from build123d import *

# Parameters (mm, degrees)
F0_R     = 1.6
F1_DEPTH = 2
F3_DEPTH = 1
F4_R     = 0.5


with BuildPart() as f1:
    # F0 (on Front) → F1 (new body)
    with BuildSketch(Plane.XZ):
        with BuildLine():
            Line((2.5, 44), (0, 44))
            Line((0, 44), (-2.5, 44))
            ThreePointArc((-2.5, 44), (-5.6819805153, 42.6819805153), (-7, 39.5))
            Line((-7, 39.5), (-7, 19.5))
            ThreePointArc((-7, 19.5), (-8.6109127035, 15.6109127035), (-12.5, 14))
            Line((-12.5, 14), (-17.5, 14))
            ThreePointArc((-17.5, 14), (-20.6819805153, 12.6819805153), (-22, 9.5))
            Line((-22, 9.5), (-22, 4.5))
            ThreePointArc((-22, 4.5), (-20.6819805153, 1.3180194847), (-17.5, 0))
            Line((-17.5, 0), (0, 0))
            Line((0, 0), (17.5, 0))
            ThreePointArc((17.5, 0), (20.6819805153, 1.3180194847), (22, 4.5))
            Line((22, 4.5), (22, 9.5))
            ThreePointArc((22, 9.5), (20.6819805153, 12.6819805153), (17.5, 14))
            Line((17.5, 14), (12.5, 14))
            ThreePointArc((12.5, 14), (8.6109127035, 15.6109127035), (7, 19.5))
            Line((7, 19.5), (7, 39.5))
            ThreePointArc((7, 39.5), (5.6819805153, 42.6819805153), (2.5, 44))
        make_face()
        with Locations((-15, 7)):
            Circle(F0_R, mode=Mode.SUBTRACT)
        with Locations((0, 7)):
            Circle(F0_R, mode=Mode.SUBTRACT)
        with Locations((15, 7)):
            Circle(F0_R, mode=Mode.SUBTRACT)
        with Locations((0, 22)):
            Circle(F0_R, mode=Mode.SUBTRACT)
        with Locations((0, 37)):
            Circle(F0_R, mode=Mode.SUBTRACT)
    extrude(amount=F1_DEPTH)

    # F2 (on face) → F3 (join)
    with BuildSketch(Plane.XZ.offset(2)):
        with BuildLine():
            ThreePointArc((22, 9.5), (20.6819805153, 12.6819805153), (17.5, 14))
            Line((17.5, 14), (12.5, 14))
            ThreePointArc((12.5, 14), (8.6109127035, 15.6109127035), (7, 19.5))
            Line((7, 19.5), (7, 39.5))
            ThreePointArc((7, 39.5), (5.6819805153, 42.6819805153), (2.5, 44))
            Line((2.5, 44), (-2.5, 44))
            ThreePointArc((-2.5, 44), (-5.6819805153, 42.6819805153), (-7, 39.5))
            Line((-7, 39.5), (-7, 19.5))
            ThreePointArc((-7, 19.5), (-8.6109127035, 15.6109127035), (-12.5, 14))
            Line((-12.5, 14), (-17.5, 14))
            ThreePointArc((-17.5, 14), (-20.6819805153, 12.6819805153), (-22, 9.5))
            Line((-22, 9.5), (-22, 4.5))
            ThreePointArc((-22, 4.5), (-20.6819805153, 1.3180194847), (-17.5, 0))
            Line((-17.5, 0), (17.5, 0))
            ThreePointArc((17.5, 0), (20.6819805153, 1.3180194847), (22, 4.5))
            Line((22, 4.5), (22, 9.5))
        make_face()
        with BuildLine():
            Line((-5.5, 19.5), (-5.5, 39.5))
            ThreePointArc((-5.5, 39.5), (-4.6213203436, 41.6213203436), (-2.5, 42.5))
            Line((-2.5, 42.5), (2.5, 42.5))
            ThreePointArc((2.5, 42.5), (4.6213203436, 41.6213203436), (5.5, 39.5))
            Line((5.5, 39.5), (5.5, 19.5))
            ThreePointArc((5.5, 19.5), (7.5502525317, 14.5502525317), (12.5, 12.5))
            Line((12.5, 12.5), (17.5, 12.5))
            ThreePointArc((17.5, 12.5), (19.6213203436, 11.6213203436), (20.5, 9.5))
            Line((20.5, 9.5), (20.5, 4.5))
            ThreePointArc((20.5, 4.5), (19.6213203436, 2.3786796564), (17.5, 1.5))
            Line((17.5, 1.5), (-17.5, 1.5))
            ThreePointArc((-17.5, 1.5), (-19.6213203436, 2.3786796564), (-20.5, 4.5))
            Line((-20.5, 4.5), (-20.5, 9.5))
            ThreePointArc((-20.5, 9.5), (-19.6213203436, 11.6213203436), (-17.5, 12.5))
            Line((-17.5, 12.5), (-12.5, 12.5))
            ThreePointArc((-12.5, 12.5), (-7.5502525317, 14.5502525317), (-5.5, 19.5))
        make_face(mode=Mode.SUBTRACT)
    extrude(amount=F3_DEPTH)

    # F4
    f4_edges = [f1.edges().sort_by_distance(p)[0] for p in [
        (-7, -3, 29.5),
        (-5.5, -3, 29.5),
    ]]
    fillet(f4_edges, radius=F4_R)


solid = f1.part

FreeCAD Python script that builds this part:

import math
import FreeCAD as App
import Part
import Sketcher
from FreeCAD import Vector


def edges_at(feature, points):
    """Names of the edges that pass closest to the given points."""
    edges = feature.Shape.Edges
    near = lambda p: min(range(len(edges)), key=lambda i: edges[i].distToShape(Part.Vertex(*p))[0])
    return sorted({f"Edge{near(p) + 1}" for p in points})

doc = App.newDocument("Part")
body = doc.addObject("PartDesign::Body", "Body")

# Sketch on XZ plane
sketch1 = body.newObject("Sketcher::SketchObject", "Sketch")
sketch1.AttachmentSupport = (doc.getObject("XZ_Plane"), [""])
sketch1.MapMode = "FlatFace"
sketch1.addGeometry([
    Part.LineSegment(Vector(2.5, 44, 0), Vector(-2.5, 44, 0)),  # 0
    Part.ArcOfCircle(Part.Circle(Vector(-2.5, 39.5, 0), Vector(0, 0, 1), 4.5), math.radians(90), math.radians(180)),  # 1
    Part.LineSegment(Vector(-7, 39.5, 0), Vector(-7, 19.5, 0)),  # 2
    Part.ArcOfCircle(Part.Circle(Vector(-12.5, 19.5, 0), Vector(0, 0, 1), 5.5), math.radians(-90), math.radians(0)),  # 3
    Part.LineSegment(Vector(-12.5, 14, 0), Vector(-17.5, 14, 0)),  # 4
    Part.ArcOfCircle(Part.Circle(Vector(-17.5, 9.5, 0), Vector(0, 0, 1), 4.5), math.radians(90), math.radians(180)),  # 5
    Part.LineSegment(Vector(-22, 9.5, 0), Vector(-22, 4.5, 0)),  # 6
    Part.ArcOfCircle(Part.Circle(Vector(-17.5, 4.5, 0), Vector(0, 0, 1), 4.5), math.radians(180), math.radians(270)),  # 7
    Part.LineSegment(Vector(-17.5, 0, 0), Vector(17.5, 0, 0)),  # 8
    Part.ArcOfCircle(Part.Circle(Vector(17.5, 4.5, 0), Vector(0, 0, 1), 4.5), math.radians(-90), math.radians(0)),  # 9
    Part.LineSegment(Vector(22, 4.5, 0), Vector(22, 9.5, 0)),  # 10
    Part.ArcOfCircle(Part.Circle(Vector(17.5, 9.5, 0), Vector(0, 0, 1), 4.5), math.radians(0), math.radians(90)),  # 11
    Part.LineSegment(Vector(17.5, 14, 0), Vector(12.5, 14, 0)),  # 12
    Part.ArcOfCircle(Part.Circle(Vector(12.5, 19.5, 0), Vector(0, 0, 1), 5.5), math.radians(180), math.radians(270)),  # 13
    Part.LineSegment(Vector(7, 19.5, 0), Vector(7, 39.5, 0)),  # 14
    Part.ArcOfCircle(Part.Circle(Vector(2.5, 39.5, 0), Vector(0, 0, 1), 4.5), math.radians(0), math.radians(90)),  # 15
    Part.Circle(Vector(-15, 7, 0), Vector(0, 0, 1), 1.6),  # 16
    Part.Circle(Vector(0, 7, 0), Vector(0, 0, 1), 1.6),  # 17
    Part.Circle(Vector(15, 7, 0), Vector(0, 0, 1), 1.6),  # 18
    Part.Circle(Vector(0, 22, 0), Vector(0, 0, 1), 1.6),  # 19
    Part.Circle(Vector(0, 37, 0), Vector(0, 0, 1), 1.6),  # 20
], False)
sketch1.addConstraint([
    Sketcher.Constraint("Tangent", 0, 2, 1, 1),
    Sketcher.Constraint("Tangent", 1, 2, 2, 1),
    Sketcher.Constraint("Tangent", 2, 2, 3, 2),
    Sketcher.Constraint("Tangent", 3, 1, 4, 1),
    Sketcher.Constraint("Tangent", 4, 2, 5, 1),
    Sketcher.Constraint("Tangent", 5, 2, 6, 1),
    Sketcher.Constraint("Tangent", 6, 2, 7, 1),
    Sketcher.Constraint("Tangent", 7, 2, 8, 1),
    Sketcher.Constraint("Tangent", 8, 2, 9, 1),
    Sketcher.Constraint("Tangent", 9, 2, 10, 1),
    Sketcher.Constraint("Tangent", 10, 2, 11, 1),
    Sketcher.Constraint("Tangent", 11, 2, 12, 1),
    Sketcher.Constraint("Tangent", 12, 2, 13, 2),
    Sketcher.Constraint("Tangent", 13, 1, 14, 1),
    Sketcher.Constraint("Tangent", 14, 2, 15, 1),
    Sketcher.Constraint("Tangent", 15, 2, 0, 1),
    Sketcher.Constraint("Horizontal", 0),
    Sketcher.Constraint("Vertical", 2),
    Sketcher.Constraint("Horizontal", 4),
    Sketcher.Constraint("Vertical", 6),
    Sketcher.Constraint("Horizontal", 8),
    Sketcher.Constraint("Vertical", 10),
    Sketcher.Constraint("Horizontal", 12),
    Sketcher.Constraint("Vertical", 14),
    Sketcher.Constraint("Equal", 1, 5),
    Sketcher.Constraint("Equal", 5, 7),
    Sketcher.Constraint("Equal", 7, 9),
    Sketcher.Constraint("Equal", 9, 11),
    Sketcher.Constraint("Equal", 3, 13),
    Sketcher.Constraint("Equal", 11, 15),
    Sketcher.Constraint("Equal", 16, 17),
    Sketcher.Constraint("Equal", 17, 18),
    Sketcher.Constraint("Equal", 18, 19),
    Sketcher.Constraint("Equal", 19, 20),
    Sketcher.Constraint("Symmetric", 7, 2, 8, 2, -1, 1),
    Sketcher.Constraint("Symmetric", 3, 3, 13, 3, -2),
    Sketcher.Constraint("Symmetric", 16, 3, 18, 3, -2),
    Sketcher.Constraint("PointOnObject", 17, 3, -2),
    Sketcher.Constraint("PointOnObject", 19, 3, -2),
    Sketcher.Constraint("PointOnObject", 20, 3, -2),
    Sketcher.Constraint("Horizontal", 16, 3, 17, 3),
    Sketcher.Constraint("Equal", 0, 4),
    Sketcher.Constraint("Equal", 12, 6),
    Sketcher.Constraint("Diameter", 16, 3.2),
    Sketcher.Constraint("Radius", 1, 4.5),
    Sketcher.Constraint("Radius", 3, 5.5),
    Sketcher.Constraint("DistanceX", 0, 2, 0, 1, 5.0),
    Sketcher.Constraint("DistanceY", 2, 2, 2, 1, 20.0),
    Sketcher.Constraint("DistanceX", 16, 3, -1, 1, 15.0),
    Sketcher.Constraint("DistanceY", -1, 1, 16, 3, 7.0),
    Sketcher.Constraint("DistanceY", -1, 1, 19, 3, 22.0),
    Sketcher.Constraint("DistanceY", -1, 1, 20, 3, 37.0),
])
pad1 = body.newObject("PartDesign::Pad", "Pad")
pad1.Profile = sketch1
pad1.Length = 2

# Sketch on XZ plane
sketch2 = body.newObject("Sketcher::SketchObject", "Sketch001")
sketch2.AttachmentSupport = (doc.getObject("XZ_Plane"), [""])
sketch2.MapMode = "FlatFace"
sketch2.AttachmentOffset = App.Placement(Vector(0, 0, 2), App.Rotation())
sketch2.addGeometry([
    Part.ArcOfCircle(Part.Circle(Vector(17.5, 9.5, 0), Vector(0, 0, 1), 4.5), math.radians(0), math.radians(90)),  # 0
    Part.LineSegment(Vector(17.5, 14, 0), Vector(12.5, 14, 0)),  # 1
    Part.ArcOfCircle(Part.Circle(Vector(12.5, 19.5, 0), Vector(0, 0, 1), 5.5), math.radians(180), math.radians(270)),  # 2
    Part.LineSegment(Vector(7, 19.5, 0), Vector(7, 39.5, 0)),  # 3
    Part.ArcOfCircle(Part.Circle(Vector(2.5, 39.5, 0), Vector(0, 0, 1), 4.5), math.radians(0), math.radians(90)),  # 4
    Part.LineSegment(Vector(2.5, 44, 0), Vector(-2.5, 44, 0)),  # 5
    Part.ArcOfCircle(Part.Circle(Vector(-2.5, 39.5, 0), Vector(0, 0, 1), 4.5), math.radians(90), math.radians(180)),  # 6
    Part.LineSegment(Vector(-7, 39.5, 0), Vector(-7, 19.5, 0)),  # 7
    Part.ArcOfCircle(Part.Circle(Vector(-12.5, 19.5, 0), Vector(0, 0, 1), 5.5), math.radians(-90), math.radians(0)),  # 8
    Part.LineSegment(Vector(-12.5, 14, 0), Vector(-17.5, 14, 0)),  # 9
    Part.ArcOfCircle(Part.Circle(Vector(-17.5, 9.5, 0), Vector(0, 0, 1), 4.5), math.radians(90), math.radians(180)),  # 10
    Part.LineSegment(Vector(-22, 9.5, 0), Vector(-22, 4.5, 0)),  # 11
    Part.ArcOfCircle(Part.Circle(Vector(-17.5, 4.5, 0), Vector(0, 0, 1), 4.5), math.radians(180), math.radians(270)),  # 12
    Part.LineSegment(Vector(-17.5, 0, 0), Vector(17.5, 0, 0)),  # 13
    Part.ArcOfCircle(Part.Circle(Vector(17.5, 4.5, 0), Vector(0, 0, 1), 4.5), math.radians(-90), math.radians(0)),  # 14
    Part.LineSegment(Vector(22, 4.5, 0), Vector(22, 9.5, 0)),  # 15
    Part.ArcOfCircle(Part.Circle(Vector(-12.5, 19.5, 0), Vector(0, 0, 1), 7), math.radians(-90), math.radians(0)),  # 16
    Part.LineSegment(Vector(-5.5, 19.5, 0), Vector(-5.5, 39.5, 0)),  # 17
    Part.ArcOfCircle(Part.Circle(Vector(-2.5, 39.5, 0), Vector(0, 0, 1), 3), math.radians(90), math.radians(180)),  # 18
    Part.LineSegment(Vector(-2.5, 42.5, 0), Vector(2.5, 42.5, 0)),  # 19
    Part.ArcOfCircle(Part.Circle(Vector(2.5, 39.5, 0), Vector(0, 0, 1), 3), math.radians(0), math.radians(90)),  # 20
    Part.LineSegment(Vector(5.5, 39.5, 0), Vector(5.5, 19.5, 0)),  # 21
    Part.ArcOfCircle(Part.Circle(Vector(12.5, 19.5, 0), Vector(0, 0, 1), 7), math.radians(180), math.radians(270)),  # 22
    Part.LineSegment(Vector(12.5, 12.5, 0), Vector(17.5, 12.5, 0)),  # 23
    Part.ArcOfCircle(Part.Circle(Vector(17.5, 9.5, 0), Vector(0, 0, 1), 3), math.radians(0), math.radians(90)),  # 24
    Part.LineSegment(Vector(20.5, 9.5, 0), Vector(20.5, 4.5, 0)),  # 25
    Part.ArcOfCircle(Part.Circle(Vector(17.5, 4.5, 0), Vector(0, 0, 1), 3), math.radians(-90), math.radians(0)),  # 26
    Part.LineSegment(Vector(17.5, 1.5, 0), Vector(-17.5, 1.5, 0)),  # 27
    Part.ArcOfCircle(Part.Circle(Vector(-17.5, 4.5, 0), Vector(0, 0, 1), 3), math.radians(180), math.radians(270)),  # 28
    Part.LineSegment(Vector(-20.5, 4.5, 0), Vector(-20.5, 9.5, 0)),  # 29
    Part.ArcOfCircle(Part.Circle(Vector(-17.5, 9.5, 0), Vector(0, 0, 1), 3), math.radians(90), math.radians(180)),  # 30
    Part.LineSegment(Vector(-17.5, 12.5, 0), Vector(-12.5, 12.5, 0)),  # 31
], False)
sketch2.addConstraint([
    Sketcher.Constraint("Tangent", 0, 2, 1, 1),
    Sketcher.Constraint("Tangent", 1, 2, 2, 2),
    Sketcher.Constraint("Tangent", 2, 1, 3, 1),
    Sketcher.Constraint("Tangent", 3, 2, 4, 1),
    Sketcher.Constraint("Tangent", 4, 2, 5, 1),
    Sketcher.Constraint("Tangent", 5, 2, 6, 1),
    Sketcher.Constraint("Tangent", 6, 2, 7, 1),
    Sketcher.Constraint("Tangent", 7, 2, 8, 2),
    Sketcher.Constraint("Tangent", 8, 1, 9, 1),
    Sketcher.Constraint("Tangent", 9, 2, 10, 1),
    Sketcher.Constraint("Tangent", 10, 2, 11, 1),
    Sketcher.Constraint("Tangent", 11, 2, 12, 1),
    Sketcher.Constraint("Tangent", 12, 2, 13, 1),
    Sketcher.Constraint("Tangent", 13, 2, 14, 1),
    Sketcher.Constraint("Tangent", 14, 2, 15, 1),
    Sketcher.Constraint("Tangent", 15, 2, 0, 1),
    Sketcher.Constraint("Tangent", 16, 2, 17, 1),
    Sketcher.Constraint("Tangent", 17, 2, 18, 2),
    Sketcher.Constraint("Tangent", 18, 1, 19, 1),
    Sketcher.Constraint("Tangent", 19, 2, 20, 2),
    Sketcher.Constraint("Tangent", 20, 1, 21, 1),
    Sketcher.Constraint("Tangent", 21, 2, 22, 1),
    Sketcher.Constraint("Tangent", 22, 2, 23, 1),
    Sketcher.Constraint("Tangent", 23, 2, 24, 2),
    Sketcher.Constraint("Tangent", 24, 1, 25, 1),
    Sketcher.Constraint("Tangent", 25, 2, 26, 2),
    Sketcher.Constraint("Tangent", 26, 1, 27, 1),
    Sketcher.Constraint("Tangent", 27, 2, 28, 2),
    Sketcher.Constraint("Tangent", 28, 1, 29, 1),
    Sketcher.Constraint("Tangent", 29, 2, 30, 2),
    Sketcher.Constraint("Tangent", 30, 1, 31, 1),
    Sketcher.Constraint("Tangent", 31, 2, 16, 1),
    Sketcher.Constraint("Horizontal", 1),
    Sketcher.Constraint("Vertical", 3),
    Sketcher.Constraint("Horizontal", 5),
    Sketcher.Constraint("Vertical", 7),
    Sketcher.Constraint("Horizontal", 9),
    Sketcher.Constraint("Vertical", 11),
    Sketcher.Constraint("Horizontal", 13),
    Sketcher.Constraint("Vertical", 15),
    Sketcher.Constraint("Vertical", 17),
    Sketcher.Constraint("Horizontal", 19),
    Sketcher.Constraint("Vertical", 21),
    Sketcher.Constraint("Horizontal", 23),
    Sketcher.Constraint("Vertical", 25),
    Sketcher.Constraint("Horizontal", 27),
    Sketcher.Constraint("Vertical", 29),
    Sketcher.Constraint("Horizontal", 31),
    Sketcher.Constraint("Coincident", 16, 3, 8, 3),
    Sketcher.Constraint("Coincident", 18, 3, 6, 3),
    Sketcher.Constraint("Coincident", 20, 3, 4, 3),
    Sketcher.Constraint("Coincident", 22, 3, 2, 3),
    Sketcher.Constraint("Coincident", 24, 3, 0, 3),
    Sketcher.Constraint("Coincident", 26, 3, 14, 3),
    Sketcher.Constraint("Coincident", 28, 3, 12, 3),
    Sketcher.Constraint("Equal", 0, 4),
    Sketcher.Constraint("Equal", 4, 6),
    Sketcher.Constraint("Equal", 2, 8),
    Sketcher.Constraint("Equal", 6, 10),
    Sketcher.Constraint("Equal", 10, 12),
    Sketcher.Constraint("Equal", 12, 14),
    Sketcher.Constraint("Equal", 28, 30),
    Sketcher.Constraint("Symmetric", 12, 2, 13, 2, -1, 1),
    Sketcher.Constraint("Symmetric", 2, 3, 8, 3, -2),
    Sketcher.Constraint("Equal", 1, 5),
    Sketcher.Constraint("Equal", 31, 11),
    Sketcher.Constraint("Radius", 16, 7.0),
    Sketcher.Constraint("Radius", 18, 3.0),
    Sketcher.Constraint("Radius", 0, 4.5),
    Sketcher.Constraint("DistanceX", 1, 2, 1, 1, 5.0),
    Sketcher.Constraint("DistanceY", 3, 1, 3, 2, 20.0),
])
pad2 = body.newObject("PartDesign::Pad", "Pad001")
pad2.Profile = sketch2
pad2.Length = 1
doc.recompute()

fillet = body.newObject("PartDesign::Fillet", "Fillet")
fillet.Base = (pad2, edges_at(pad2, [(-7, -3, 29.5), (-5.5, -3, 29.5)]))
fillet.Radius = 0.5

doc.recompute()
